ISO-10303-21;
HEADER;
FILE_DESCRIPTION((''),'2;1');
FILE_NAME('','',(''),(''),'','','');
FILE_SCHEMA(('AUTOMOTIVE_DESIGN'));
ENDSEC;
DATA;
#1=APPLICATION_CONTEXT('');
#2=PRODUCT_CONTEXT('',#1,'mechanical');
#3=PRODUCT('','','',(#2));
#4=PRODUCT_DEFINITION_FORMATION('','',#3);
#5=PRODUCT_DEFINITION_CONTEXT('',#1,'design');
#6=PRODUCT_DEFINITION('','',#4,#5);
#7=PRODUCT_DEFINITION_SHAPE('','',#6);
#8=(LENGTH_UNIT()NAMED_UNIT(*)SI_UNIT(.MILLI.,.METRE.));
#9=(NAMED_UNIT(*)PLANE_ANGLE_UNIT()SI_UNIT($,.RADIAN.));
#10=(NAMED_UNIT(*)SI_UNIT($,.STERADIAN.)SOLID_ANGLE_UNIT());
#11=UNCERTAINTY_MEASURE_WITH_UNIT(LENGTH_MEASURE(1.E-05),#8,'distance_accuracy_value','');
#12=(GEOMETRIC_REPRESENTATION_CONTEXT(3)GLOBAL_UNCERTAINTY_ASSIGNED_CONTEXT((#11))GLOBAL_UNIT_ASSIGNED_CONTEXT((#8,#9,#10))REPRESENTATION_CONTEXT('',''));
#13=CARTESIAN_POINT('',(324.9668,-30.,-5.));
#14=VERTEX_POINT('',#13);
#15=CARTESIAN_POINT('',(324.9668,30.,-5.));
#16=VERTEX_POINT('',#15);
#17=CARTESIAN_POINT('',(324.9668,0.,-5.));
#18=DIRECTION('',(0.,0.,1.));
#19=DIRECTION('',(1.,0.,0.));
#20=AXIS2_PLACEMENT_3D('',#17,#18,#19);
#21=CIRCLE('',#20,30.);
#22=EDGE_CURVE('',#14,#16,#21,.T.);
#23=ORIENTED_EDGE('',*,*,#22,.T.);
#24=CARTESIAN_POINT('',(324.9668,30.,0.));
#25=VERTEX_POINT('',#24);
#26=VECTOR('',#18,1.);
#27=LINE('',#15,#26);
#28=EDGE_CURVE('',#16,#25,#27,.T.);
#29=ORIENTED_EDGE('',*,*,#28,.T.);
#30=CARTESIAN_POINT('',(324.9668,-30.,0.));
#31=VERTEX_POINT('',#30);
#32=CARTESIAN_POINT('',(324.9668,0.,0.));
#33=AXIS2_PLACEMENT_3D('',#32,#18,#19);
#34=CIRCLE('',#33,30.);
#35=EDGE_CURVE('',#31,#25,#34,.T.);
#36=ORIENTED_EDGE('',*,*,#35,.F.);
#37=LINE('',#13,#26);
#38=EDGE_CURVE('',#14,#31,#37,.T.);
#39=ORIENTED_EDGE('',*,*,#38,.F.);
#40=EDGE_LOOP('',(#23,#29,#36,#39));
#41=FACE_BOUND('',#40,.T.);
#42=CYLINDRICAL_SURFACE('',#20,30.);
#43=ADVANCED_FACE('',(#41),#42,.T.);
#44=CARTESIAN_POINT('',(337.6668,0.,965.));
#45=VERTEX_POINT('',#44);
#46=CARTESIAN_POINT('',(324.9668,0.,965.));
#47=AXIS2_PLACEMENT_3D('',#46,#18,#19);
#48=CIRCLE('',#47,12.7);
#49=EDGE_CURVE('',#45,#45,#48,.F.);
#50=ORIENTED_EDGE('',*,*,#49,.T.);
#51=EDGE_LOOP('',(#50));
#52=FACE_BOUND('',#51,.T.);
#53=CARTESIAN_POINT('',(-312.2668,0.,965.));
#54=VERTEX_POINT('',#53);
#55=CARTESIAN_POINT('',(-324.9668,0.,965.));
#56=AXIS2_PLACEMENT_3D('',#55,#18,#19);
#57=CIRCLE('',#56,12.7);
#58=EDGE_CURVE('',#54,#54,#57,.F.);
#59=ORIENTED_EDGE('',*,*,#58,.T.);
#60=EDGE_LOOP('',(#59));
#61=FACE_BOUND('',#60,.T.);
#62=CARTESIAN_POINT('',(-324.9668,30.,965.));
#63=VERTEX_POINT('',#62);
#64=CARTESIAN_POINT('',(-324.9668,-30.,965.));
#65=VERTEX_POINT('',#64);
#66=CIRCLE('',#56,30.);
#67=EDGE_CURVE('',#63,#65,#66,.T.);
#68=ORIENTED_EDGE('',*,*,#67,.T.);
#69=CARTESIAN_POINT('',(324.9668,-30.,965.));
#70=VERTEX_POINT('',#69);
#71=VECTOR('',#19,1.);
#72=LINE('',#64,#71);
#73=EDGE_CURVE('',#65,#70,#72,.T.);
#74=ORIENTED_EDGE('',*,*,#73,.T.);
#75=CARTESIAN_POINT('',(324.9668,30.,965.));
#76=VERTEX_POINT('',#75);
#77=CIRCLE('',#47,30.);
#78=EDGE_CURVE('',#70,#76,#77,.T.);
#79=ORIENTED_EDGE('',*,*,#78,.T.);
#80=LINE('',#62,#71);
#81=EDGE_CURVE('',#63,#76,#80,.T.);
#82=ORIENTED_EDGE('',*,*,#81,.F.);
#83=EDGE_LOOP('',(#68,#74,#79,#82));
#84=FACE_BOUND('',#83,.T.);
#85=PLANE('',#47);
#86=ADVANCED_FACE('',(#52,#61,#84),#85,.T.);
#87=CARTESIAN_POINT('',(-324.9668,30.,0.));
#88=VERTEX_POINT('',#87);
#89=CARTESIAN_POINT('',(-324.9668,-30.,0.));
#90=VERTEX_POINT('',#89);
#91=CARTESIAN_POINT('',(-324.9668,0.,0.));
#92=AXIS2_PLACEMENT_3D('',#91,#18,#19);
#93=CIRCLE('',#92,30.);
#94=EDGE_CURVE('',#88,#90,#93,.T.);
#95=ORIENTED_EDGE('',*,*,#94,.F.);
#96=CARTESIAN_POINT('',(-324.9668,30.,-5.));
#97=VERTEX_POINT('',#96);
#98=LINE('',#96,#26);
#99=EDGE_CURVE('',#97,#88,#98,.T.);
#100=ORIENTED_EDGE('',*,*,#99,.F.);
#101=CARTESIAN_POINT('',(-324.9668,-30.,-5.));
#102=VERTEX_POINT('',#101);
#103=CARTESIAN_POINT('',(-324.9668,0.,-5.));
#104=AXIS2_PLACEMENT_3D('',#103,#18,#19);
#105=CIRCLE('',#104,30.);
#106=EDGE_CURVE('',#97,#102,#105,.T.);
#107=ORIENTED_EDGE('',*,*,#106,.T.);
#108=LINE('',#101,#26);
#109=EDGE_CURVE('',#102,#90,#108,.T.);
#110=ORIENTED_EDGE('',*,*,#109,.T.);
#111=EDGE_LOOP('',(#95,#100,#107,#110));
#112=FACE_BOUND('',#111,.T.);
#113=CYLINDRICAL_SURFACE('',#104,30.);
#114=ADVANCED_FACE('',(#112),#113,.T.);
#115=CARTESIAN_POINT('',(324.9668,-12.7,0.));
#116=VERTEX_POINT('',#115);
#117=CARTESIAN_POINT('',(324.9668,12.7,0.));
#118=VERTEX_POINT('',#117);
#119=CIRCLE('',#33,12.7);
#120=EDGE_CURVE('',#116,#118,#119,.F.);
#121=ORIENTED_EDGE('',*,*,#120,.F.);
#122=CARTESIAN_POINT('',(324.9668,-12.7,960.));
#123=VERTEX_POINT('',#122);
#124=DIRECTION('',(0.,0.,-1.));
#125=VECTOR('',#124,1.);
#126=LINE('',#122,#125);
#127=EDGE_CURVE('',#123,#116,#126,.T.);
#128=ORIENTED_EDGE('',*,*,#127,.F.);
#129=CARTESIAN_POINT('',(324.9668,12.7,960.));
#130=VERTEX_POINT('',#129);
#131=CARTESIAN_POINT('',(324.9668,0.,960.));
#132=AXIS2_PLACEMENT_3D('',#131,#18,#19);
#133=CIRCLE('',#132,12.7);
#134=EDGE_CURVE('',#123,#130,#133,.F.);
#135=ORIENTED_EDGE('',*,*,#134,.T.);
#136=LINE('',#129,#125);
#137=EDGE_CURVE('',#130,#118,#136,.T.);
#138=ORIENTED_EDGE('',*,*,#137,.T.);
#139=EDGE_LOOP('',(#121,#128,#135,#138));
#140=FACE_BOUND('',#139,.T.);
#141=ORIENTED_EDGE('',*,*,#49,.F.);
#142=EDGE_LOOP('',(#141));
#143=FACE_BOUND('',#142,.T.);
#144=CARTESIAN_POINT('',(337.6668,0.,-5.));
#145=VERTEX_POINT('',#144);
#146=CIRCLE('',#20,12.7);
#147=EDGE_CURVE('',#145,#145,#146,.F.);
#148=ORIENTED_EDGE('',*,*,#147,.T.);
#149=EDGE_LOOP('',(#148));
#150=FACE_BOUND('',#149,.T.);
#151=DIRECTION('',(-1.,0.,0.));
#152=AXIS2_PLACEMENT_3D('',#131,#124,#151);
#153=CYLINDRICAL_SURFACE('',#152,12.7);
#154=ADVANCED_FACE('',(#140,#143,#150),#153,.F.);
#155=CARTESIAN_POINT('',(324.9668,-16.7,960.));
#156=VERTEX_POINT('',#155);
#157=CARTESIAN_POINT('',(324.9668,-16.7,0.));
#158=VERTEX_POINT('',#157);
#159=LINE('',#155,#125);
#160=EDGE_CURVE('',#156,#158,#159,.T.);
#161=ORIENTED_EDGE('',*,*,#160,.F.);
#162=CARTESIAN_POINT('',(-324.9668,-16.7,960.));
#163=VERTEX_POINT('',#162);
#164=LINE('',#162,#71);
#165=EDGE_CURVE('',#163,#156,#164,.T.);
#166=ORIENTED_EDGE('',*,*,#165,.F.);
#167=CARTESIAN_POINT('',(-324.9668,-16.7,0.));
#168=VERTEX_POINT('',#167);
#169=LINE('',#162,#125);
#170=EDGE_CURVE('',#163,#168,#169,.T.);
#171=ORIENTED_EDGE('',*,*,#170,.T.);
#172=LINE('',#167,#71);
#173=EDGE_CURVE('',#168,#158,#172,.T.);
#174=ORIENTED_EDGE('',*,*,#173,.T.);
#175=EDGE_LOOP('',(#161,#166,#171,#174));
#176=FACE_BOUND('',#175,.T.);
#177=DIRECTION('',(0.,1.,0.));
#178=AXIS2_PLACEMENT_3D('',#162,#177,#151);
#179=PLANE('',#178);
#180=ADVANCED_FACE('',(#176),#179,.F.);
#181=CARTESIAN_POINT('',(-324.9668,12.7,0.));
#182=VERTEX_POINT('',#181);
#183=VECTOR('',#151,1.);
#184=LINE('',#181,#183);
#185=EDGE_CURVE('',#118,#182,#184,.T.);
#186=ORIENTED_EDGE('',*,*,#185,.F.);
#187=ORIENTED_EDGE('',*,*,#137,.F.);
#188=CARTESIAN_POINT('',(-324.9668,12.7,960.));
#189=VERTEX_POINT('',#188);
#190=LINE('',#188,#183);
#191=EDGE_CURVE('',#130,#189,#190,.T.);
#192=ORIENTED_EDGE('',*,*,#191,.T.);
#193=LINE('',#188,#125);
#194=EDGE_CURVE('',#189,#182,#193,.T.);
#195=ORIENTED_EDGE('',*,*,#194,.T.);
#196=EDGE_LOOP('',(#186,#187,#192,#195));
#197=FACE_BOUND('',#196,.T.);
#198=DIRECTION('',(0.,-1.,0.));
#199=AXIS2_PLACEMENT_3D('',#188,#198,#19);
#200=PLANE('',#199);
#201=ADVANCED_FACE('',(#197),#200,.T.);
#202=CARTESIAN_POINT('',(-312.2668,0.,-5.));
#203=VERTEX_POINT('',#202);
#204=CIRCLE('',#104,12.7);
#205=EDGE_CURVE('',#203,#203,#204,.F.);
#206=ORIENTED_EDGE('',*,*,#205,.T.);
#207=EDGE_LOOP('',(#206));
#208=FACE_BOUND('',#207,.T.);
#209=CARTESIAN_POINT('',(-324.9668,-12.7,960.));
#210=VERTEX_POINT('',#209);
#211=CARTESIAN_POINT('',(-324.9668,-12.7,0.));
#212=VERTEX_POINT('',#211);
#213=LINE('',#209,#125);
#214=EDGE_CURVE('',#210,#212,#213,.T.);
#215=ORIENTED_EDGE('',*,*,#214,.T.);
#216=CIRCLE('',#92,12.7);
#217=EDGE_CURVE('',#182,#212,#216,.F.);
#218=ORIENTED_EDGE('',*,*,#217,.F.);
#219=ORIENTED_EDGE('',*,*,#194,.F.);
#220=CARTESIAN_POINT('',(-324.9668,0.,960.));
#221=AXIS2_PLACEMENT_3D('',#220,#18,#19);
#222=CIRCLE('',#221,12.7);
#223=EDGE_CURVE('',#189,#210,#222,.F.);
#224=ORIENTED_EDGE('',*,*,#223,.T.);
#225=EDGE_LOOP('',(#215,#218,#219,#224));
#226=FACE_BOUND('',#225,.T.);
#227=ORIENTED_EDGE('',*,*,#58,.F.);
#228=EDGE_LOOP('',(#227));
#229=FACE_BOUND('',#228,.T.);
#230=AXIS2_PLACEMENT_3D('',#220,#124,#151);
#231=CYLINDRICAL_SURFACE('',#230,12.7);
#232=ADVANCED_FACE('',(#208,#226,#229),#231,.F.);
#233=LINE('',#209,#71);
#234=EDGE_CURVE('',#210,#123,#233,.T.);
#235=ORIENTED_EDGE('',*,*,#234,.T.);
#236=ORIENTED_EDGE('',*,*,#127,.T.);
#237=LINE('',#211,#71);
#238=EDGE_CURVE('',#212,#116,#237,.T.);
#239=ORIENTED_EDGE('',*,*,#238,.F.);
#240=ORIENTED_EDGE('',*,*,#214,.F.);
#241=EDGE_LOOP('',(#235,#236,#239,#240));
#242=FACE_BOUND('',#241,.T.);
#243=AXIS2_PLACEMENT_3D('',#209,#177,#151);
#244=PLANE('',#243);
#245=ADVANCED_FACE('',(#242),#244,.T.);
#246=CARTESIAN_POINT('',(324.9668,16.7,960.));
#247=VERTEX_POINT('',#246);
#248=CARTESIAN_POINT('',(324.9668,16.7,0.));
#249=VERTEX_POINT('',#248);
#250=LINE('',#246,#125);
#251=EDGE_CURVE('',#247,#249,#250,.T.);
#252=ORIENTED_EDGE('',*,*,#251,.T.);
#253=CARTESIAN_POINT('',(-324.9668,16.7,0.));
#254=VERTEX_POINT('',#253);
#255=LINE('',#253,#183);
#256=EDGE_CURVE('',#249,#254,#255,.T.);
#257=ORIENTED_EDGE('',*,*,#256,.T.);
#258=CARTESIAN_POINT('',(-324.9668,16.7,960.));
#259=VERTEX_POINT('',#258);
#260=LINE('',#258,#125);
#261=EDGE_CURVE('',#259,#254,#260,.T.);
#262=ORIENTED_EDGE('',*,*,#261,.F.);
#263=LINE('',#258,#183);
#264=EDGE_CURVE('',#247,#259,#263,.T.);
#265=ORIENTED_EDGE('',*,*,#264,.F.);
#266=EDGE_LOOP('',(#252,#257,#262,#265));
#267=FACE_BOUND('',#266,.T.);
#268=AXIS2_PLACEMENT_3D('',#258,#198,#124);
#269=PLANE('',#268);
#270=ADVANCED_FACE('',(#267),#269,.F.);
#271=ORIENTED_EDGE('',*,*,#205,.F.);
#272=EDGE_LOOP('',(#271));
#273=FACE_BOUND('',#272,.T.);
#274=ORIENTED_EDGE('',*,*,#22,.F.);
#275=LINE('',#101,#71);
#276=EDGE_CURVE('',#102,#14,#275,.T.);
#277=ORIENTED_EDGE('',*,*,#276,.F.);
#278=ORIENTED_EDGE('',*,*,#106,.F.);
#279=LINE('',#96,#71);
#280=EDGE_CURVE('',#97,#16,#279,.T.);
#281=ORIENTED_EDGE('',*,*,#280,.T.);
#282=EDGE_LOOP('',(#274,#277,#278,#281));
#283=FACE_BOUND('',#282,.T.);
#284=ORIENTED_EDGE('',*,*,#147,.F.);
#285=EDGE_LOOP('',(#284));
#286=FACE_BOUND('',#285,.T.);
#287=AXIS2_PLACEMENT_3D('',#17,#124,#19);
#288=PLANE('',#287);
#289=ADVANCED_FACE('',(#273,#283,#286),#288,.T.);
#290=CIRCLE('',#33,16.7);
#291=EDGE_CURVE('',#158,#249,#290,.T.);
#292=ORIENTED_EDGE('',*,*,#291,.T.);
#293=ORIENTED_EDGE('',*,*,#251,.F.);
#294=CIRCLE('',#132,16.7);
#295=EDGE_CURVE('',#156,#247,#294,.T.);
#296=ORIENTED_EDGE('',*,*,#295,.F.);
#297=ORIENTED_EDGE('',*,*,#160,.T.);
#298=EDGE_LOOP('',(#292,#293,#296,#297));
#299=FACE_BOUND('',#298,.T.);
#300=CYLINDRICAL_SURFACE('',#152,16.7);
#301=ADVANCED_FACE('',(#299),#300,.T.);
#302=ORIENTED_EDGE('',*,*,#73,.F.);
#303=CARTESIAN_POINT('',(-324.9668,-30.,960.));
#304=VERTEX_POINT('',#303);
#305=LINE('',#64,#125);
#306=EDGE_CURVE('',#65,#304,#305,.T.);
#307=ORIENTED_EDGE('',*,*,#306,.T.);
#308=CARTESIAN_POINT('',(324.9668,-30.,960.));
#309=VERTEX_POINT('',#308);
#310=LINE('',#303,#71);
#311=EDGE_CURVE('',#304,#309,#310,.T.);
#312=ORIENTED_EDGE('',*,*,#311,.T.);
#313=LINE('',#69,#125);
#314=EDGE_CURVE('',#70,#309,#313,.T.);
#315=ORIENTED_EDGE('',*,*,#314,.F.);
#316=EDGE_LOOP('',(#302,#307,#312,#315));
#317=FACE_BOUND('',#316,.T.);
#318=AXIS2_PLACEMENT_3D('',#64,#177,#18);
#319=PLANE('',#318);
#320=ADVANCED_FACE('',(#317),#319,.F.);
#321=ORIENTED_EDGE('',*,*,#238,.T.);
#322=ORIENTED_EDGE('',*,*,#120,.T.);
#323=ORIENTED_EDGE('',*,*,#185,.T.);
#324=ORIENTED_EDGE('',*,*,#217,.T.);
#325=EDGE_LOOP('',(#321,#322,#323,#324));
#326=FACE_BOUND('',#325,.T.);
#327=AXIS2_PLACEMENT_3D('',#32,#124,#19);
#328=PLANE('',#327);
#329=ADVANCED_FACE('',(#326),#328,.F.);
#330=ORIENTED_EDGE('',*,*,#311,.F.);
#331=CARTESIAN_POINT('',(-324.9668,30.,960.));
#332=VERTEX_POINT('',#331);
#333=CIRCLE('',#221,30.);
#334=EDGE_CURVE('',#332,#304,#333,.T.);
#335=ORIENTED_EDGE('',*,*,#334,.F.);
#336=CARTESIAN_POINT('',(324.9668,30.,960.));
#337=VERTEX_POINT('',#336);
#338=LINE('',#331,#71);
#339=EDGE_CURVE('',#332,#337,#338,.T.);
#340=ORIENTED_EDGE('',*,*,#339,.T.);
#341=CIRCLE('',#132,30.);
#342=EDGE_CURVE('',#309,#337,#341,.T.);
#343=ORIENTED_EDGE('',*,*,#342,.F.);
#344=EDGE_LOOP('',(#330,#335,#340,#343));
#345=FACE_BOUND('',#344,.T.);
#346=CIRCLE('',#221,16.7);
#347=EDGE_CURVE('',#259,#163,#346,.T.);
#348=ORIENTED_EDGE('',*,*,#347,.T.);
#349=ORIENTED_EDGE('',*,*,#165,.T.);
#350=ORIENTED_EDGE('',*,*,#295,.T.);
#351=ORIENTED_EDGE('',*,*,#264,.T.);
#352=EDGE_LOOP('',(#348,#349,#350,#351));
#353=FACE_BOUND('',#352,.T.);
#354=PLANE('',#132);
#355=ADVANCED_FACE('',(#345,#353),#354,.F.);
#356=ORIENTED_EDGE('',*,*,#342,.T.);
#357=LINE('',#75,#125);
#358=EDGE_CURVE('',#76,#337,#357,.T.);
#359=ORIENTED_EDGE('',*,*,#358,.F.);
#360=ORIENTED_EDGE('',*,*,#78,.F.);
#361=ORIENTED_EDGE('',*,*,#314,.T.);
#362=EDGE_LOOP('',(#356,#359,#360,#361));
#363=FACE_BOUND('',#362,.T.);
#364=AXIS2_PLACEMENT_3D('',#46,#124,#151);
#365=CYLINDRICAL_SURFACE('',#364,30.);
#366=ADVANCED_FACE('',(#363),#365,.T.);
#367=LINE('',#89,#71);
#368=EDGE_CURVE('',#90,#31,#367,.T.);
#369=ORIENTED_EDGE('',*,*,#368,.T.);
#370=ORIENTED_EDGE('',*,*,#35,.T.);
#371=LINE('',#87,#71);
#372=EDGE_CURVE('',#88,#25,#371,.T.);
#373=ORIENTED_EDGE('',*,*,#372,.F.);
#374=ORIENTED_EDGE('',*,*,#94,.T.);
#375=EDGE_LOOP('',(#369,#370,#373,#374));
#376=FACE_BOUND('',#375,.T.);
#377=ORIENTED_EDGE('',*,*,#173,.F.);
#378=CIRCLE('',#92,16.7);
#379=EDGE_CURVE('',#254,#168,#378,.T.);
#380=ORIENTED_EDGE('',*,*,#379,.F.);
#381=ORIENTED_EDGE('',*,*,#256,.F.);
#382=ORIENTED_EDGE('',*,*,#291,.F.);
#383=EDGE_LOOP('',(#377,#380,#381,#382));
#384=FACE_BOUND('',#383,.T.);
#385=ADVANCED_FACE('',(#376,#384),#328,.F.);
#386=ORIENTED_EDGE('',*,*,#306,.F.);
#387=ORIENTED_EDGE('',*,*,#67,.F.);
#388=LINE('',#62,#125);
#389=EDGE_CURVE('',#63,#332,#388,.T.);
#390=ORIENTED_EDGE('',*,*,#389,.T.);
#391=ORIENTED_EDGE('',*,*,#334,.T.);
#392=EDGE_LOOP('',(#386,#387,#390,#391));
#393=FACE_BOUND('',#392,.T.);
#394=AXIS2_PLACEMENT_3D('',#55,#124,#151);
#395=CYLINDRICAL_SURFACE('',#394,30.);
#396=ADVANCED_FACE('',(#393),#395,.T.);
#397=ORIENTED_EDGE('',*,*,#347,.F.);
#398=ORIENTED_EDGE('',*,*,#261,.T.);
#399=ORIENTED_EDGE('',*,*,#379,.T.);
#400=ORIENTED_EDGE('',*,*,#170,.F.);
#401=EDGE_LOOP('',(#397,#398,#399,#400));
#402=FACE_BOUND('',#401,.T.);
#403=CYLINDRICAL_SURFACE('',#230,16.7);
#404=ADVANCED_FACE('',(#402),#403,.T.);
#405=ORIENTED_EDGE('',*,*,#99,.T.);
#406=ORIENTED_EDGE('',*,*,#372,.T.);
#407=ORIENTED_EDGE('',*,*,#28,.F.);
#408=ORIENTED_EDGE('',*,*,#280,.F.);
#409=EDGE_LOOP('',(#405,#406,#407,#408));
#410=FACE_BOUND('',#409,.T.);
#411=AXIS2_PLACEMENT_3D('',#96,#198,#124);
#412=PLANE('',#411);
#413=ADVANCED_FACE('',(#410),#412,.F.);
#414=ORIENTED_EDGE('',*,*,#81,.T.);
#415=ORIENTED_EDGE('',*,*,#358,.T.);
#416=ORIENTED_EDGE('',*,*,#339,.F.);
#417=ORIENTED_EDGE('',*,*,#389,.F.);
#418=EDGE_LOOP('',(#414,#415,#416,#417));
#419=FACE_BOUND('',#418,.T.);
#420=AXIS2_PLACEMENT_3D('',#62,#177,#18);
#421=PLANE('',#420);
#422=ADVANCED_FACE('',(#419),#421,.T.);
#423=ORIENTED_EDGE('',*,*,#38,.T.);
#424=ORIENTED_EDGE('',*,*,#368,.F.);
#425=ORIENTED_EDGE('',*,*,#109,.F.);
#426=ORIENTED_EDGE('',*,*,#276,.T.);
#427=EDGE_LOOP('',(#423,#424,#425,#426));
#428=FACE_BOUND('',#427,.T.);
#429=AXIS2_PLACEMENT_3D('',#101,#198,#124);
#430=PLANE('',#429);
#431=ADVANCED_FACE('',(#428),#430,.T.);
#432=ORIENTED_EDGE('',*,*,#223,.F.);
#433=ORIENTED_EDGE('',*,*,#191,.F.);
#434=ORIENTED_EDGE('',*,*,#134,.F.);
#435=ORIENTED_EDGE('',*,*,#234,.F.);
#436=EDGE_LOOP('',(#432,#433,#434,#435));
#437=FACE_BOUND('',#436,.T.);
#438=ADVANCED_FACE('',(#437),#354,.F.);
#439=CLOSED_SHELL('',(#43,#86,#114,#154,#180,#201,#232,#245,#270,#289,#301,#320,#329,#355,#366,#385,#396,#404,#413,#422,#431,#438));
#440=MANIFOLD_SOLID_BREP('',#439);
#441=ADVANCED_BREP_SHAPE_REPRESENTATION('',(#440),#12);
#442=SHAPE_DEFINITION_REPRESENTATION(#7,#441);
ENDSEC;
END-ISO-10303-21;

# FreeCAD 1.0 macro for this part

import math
import FreeCAD as App
import Part
import Sketcher

V = App.Vector

doc = App.newDocument("Part")
body = doc.addObject("PartDesign::Body", "Body")

sketch1 = doc.addObject("Sketcher::SketchObject", "Sketch")
body.addObject(sketch1)
sketch1.AttachmentSupport = (doc.XY_Plane, [""])
sketch1.MapMode = "FlatFace"
sketch1.addGeometry([
    Part.LineSegment(V(325, 17, 0), V(-325, 17, 0)),
    Part.ArcOfCircle(Part.Circle(V(-325, 0, 0), V(0, 0, 1), 17), math.radians(90), math.radians(270)),
    Part.LineSegment(V(-325, -17, 0), V(325, -17, 0)),
    Part.ArcOfCircle(Part.Circle(V(325, 0, 0), V(0, 0, 1), 17), math.radians(-90), math.radians(90)),
    Part.LineSegment(V(-325, 13, 0), V(325, 13, 0)),
    Part.ArcOfCircle(Part.Circle(V(325, 0, 0), V(0, 0, 1), 13), math.radians(-90), math.radians(90)),
    Part.LineSegment(V(325, -13, 0), V(-325, -13, 0)),
    Part.ArcOfCircle(Part.Circle(V(-325, 0, 0), V(0, 0, 1), 13), math.radians(90), math.radians(270)),
], False)
sketch1.addConstraint([
    Sketcher.Constraint("Tangent", 0, 2, 1, 1),
    Sketcher.Constraint("Tangent", 1, 2, 2, 1),
    Sketcher.Constraint("Tangent", 2, 2, 3, 1),
    Sketcher.Constraint("Tangent", 3, 2, 0, 1),
    Sketcher.Constraint("Tangent", 4, 2, 5, 2),
    Sketcher.Constraint("Tangent", 5, 1, 6, 1),
    Sketcher.Constraint("Tangent", 6, 2, 7, 2),
    Sketcher.Constraint("Tangent", 7, 1, 4, 1),
    Sketcher.Constraint("Horizontal", 0),
    Sketcher.Constraint("Horizontal", 2),
    Sketcher.Constraint("Horizontal", 4),
    Sketcher.Constraint("Horizontal", 6),
    Sketcher.Constraint("Coincident", 5, 3, 3, 3),
    Sketcher.Constraint("Symmetric", 1, 3, 3, 3, -1, 1),
    Sketcher.Constraint("Vertical", 7, 3, 0, 2),
    Sketcher.Constraint("Radius", 1, 16.7),
    Sketcher.Constraint("Radius", 5, 12.7),
    Sketcher.Constraint("DistanceX", 0, 2, 0, 1, 649.9336),
])
pad1 = doc.addObject("PartDesign::Pad", "Pad")
body.addObject(pad1)
pad1.Profile = sketch1
pad1.Length = 960

sketch2 = doc.addObject("Sketcher::SketchObject", "Sketch001")
body.addObject(sketch2)
sketch2.AttachmentSupport = (doc.XY_Plane, [""])
sketch2.MapMode = "FlatFace"
sketch2.AttachmentOffset = App.Placement(V(0, 0, 960), App.Rotation())
sketch2.addGeometry([
    Part.LineSegment(V(325, 30, 0), V(-325, 30, 0)),
    Part.ArcOfCircle(Part.Circle(V(-325, 0, 0), V(0, 0, 1), 30), math.radians(90), math.radians(270)),
    Part.LineSegment(V(-325, -30, 0), V(325, -30, 0)),
    Part.ArcOfCircle(Part.Circle(V(325, 0, 0), V(0, 0, 1), 30), math.radians(-90), math.radians(90)),
    Part.Circle(V(325, 0, 0), V(0, 0, 1), 13),
    Part.Circle(V(-325, 0, 0), V(0, 0, 1), 13),
], False)
sketch2.addConstraint([
    Sketcher.Constraint("Tangent", 0, 2, 1, 1),
    Sketcher.Constraint("Tangent", 1, 2, 2, 1),
    Sketcher.Constraint("Tangent", 2, 2, 3, 1),
    Sketcher.Constraint("Tangent", 3, 2, 0, 1),
    Sketcher.Constraint("Horizontal", 0),
    Sketcher.Constraint("Horizontal", 2),
    Sketcher.Constraint("Coincident", 4, 3, 3, 3),
    Sketcher.Constraint("Coincident", 5, 3, 1, 3),
    Sketcher.Constraint("Equal", 4, 5),
    Sketcher.Constraint("Symmetric", 1, 3, 3, 3, -1, 1),
    Sketcher.Constraint("Radius", 1, 30.0),
    Sketcher.Constraint("Diameter", 4, 25.4),
    Sketcher.Constraint("DistanceX", 0, 2, 0, 1, 649.9336),
])
pad2 = doc.addObject("PartDesign::Pad", "Pad001")
body.addObject(pad2)
pad2.Profile = sketch2
pad2.Length = 5
doc.recompute()

datumplane = doc.addObject("PartDesign::Plane", "DatumPlane")
body.addObject(datumplane)
datumplane.AttachmentSupport = (doc.XY_Plane, [""])
datumplane.MapMode = "FlatFace"
datumplane.AttachmentOffset = App.Placement(V(0, 0, 480), App.Rotation())
mirrored = doc.addObject("PartDesign::Mirrored", "Mirrored")
body.addObject(mirrored)
mirrored.Originals = [pad2]
mirrored.MirrorPlane = (datumplane, [""])
body.Tip = mirrored

doc.recompute()
